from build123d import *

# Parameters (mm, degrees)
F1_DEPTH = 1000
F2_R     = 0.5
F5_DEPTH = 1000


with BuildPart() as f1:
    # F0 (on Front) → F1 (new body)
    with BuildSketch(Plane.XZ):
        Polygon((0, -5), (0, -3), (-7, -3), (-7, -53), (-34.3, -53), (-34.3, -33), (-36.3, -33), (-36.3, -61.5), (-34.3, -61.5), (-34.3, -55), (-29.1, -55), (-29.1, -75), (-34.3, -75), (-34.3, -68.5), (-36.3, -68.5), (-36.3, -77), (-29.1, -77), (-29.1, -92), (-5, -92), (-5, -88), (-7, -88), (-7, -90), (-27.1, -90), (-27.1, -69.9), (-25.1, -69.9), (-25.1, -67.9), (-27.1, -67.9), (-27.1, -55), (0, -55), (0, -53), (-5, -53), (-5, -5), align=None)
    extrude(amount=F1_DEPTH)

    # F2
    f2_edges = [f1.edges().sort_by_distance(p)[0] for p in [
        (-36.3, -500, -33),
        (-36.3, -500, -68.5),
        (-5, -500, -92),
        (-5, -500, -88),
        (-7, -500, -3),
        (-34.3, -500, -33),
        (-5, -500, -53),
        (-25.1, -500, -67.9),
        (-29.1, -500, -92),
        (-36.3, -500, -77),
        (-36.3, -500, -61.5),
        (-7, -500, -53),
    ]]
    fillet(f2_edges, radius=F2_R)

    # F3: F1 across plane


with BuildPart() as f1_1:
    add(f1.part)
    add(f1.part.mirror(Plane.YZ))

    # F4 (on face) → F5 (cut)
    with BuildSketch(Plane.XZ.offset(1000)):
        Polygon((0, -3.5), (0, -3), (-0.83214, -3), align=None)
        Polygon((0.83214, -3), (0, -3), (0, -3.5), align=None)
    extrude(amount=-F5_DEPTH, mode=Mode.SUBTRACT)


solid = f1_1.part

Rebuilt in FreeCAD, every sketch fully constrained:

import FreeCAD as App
import Part
import Sketcher

V = App.Vector
Q = App.Units.Quantity


def edges_at(feature, points):
    """Names of the edges that pass closest to the given points."""
    edges = feature.Shape.Edges
    near = lambda p: min(range(len(edges)), key=lambda i: edges[i].distToShape(Part.Vertex(*p))[0])
    return sorted({f"Edge{near(p) + 1}" for p in points})


def add_polygon(sketch, points):
    """Adds a closed chain of lines whose ends are joined by coincident constraints."""
    first, n = sketch.GeometryCount, len(points)
    for a, b in zip(points, points[1:] + points[:1]):
        sketch.addGeometry(Part.LineSegment(App.Vector(*a, 0), App.Vector(*b, 0)), False)
    for i in range(n):
        sketch.addConstraint(Sketcher.Constraint("Coincident", first + i, 2, first + (i + 1) % n, 1))

doc = App.newDocument("Part")
body = doc.addObject("PartDesign::Body", "Body")

# Sketch on XZ plane
sketch1 = doc.addObject("Sketcher::SketchObject", "Sketch")
body.addObject(sketch1)
sketch1.AttachmentSupport = (doc.XZ_Plane, [""])
sketch1.MapMode = "FlatFace"
add_polygon(sketch1, [(0, -5), (0, -3), (-7, -3), (-7, -53), (-34.3, -53), (-34.3, -33), (-36.3, -33), (-36.3, -61.5), (-34.3, -61.5), (-34.3, -55), (-29.1, -55), (-29.1, -75), (-34.3, -75), (-34.3, -68.5), (-36.3, -68.5), (-36.3, -77), (-29.1, -77), (-29.1, -92), (-5, -92), (-5, -88), (-7, -88), (-7, -90), (-27.1, -90), (-27.1, -69.9), (-25.1, -69.9), (-25.1, -67.9), (-27.1, -67.9), (-27.1, -55), (0, -55), (0, -53), (-5, -53), (-5, -5)])  # lines 0-31
sketch1.addConstraint(Sketcher.Constraint("Vertical", 0))
sketch1.addConstraint(Sketcher.Constraint("Horizontal", 1))
sketch1.addConstraint(Sketcher.Constraint("Vertical", 2))
sketch1.addConstraint(Sketcher.Constraint("Horizontal", 3))
sketch1.addConstraint(Sketcher.Constraint("Vertical", 4))
sketch1.addConstraint(Sketcher.Constraint("Horizontal", 5))
sketch1.addConstraint(Sketcher.Constraint("Vertical", 6))
sketch1.addConstraint(Sketcher.Constraint("Horizontal", 7))
sketch1.addConstraint(Sketcher.Constraint("Vertical", 8))
sketch1.addConstraint(Sketcher.Constraint("Horizontal", 9))
sketch1.addConstraint(Sketcher.Constraint("Vertical", 10))
sketch1.addConstraint(Sketcher.Constraint("Horizontal", 11))
sketch1.addConstraint(Sketcher.Constraint("Vertical", 12))
sketch1.addConstraint(Sketcher.Constraint("Horizontal", 13))
sketch1.addConstraint(Sketcher.Constraint("Vertical", 14))
sketch1.addConstraint(Sketcher.Constraint("Horizontal", 15))
sketch1.addConstraint(Sketcher.Constraint("Vertical", 16))
sketch1.addConstraint(Sketcher.Constraint("Horizontal", 17))
sketch1.addConstraint(Sketcher.Constraint("Vertical", 18))
sketch1.addConstraint(Sketcher.Constraint("Horizontal", 19))
sketch1.addConstraint(Sketcher.Constraint("Vertical", 20))
sketch1.addConstraint(Sketcher.Constraint("Horizontal", 21))
sketch1.addConstraint(Sketcher.Constraint("Vertical", 22))
sketch1.addConstraint(Sketcher.Constraint("Horizontal", 23))
sketch1.addConstraint(Sketcher.Constraint("Vertical", 24))
sketch1.addConstraint(Sketcher.Constraint("Horizontal", 25))
sketch1.addConstraint(Sketcher.Constraint("Vertical", 26))
sketch1.addConstraint(Sketcher.Constraint("Horizontal", 27))
sketch1.addConstraint(Sketcher.Constraint("Vertical", 28))
sketch1.addConstraint(Sketcher.Constraint("Horizontal", 29))
sketch1.addConstraint(Sketcher.Constraint("Vertical", 30))
sketch1.addConstraint(Sketcher.Constraint("Horizontal", 31))
sketch1.addConstraint(Sketcher.Constraint("PointOnObject", 0, 2, -2))
sketch1.addConstraint(Sketcher.Constraint("PointOnObject", 27, 2, -2))
sketch1.addConstraint(Sketcher.Constraint("Horizontal", 9, 2, 26, 2))
sketch1.addConstraint(Sketcher.Constraint("Horizontal", 3, 2, 28, 2))
sketch1.addConstraint(Sketcher.Constraint("Vertical", 4, 2, 7, 2))
sketch1.addConstraint(Sketcher.Constraint("Vertical", 8, 2, 11, 2))
sketch1.addConstraint(Sketcher.Constraint("Vertical", 6, 2, 13, 2))
sketch1.addConstraint(Sketcher.Constraint("Vertical", 10, 2, 15, 2))
sketch1.addConstraint(Sketcher.Constraint("Vertical", 2, 2, 19, 2))
sketch1.addConstraint(Sketcher.Constraint("Vertical", 22, 2, 25, 2))
sketch1.addConstraint(Sketcher.Constraint("Vertical", 18, 2, 29, 2))
sketch1.addConstraint(Sketcher.Constraint("Equal", 13, 19))
sketch1.addConstraint(Sketcher.Constraint("Equal", 19, 23))
sketch1.addConstraint(Sketcher.Constraint("Equal", 25, 0))
sketch1.addConstraint(Sketcher.Constraint("Equal", 4, 10))
sketch1.addConstraint(Sketcher.Constraint("Equal", 8, 12))
sketch1.addConstraint(Sketcher.Constraint("Equal", 0, 20))
sketch1.addConstraint(Sketcher.Constraint("Equal", 21, 22))
sketch1.addConstraint(Sketcher.Constraint("Equal", 20, 24))
sketch1.addConstraint(Sketcher.Constraint("Equal", 24, 28))
sketch1.addConstraint(Sketcher.Constraint("DistanceX", 1, 2, 1, 1, 7.0))
sketch1.addConstraint(Sketcher.Constraint("DistanceX", 5, 2, 5, 1, 2.0))
sketch1.addConstraint(Sketcher.Constraint("DistanceY", 2, 2, 2, 1, 50.0))
sketch1.addConstraint(Sketcher.Constraint("DistanceY", 4, 1, 4, 2, 20.0))
sketch1.addConstraint(Sketcher.Constraint("DistanceY", 16, 2, 16, 1, 15.0))
sketch1.addConstraint(Sketcher.Constraint("DistanceY", 18, 1, 18, 2, 4.0))
sketch1.addConstraint(Sketcher.Constraint("DistanceX", 3, 2, 3, 1, 27.3))
sketch1.addConstraint(Sketcher.Constraint("DistanceX", 9, 1, 9, 2, 5.2))
sketch1.addConstraint(Sketcher.Constraint("DistanceX", 21, 2, 21, 1, 20.1))
sketch1.addConstraint(Sketcher.Constraint("DistanceY", 6, 2, 6, 1, 28.5))
sketch1.addConstraint(Sketcher.Constraint("DistanceY", 14, 2, 14, 1, 8.5))
sketch1.addConstraint(Sketcher.Constraint("DistanceY", 0, 2, -1, 1, 3.0))
pad1 = doc.addObject("PartDesign::Pad", "Pad")
body.addObject(pad1)
pad1.Profile = sketch1
pad1.Length = 1000
doc.recompute()

fillet = doc.addObject("PartDesign::Fillet", "Fillet")
body.addObject(fillet)
fillet.Base = (pad1, edges_at(pad1, [
    (-36.3, -500, -33),
    (-36.3, -500, -68.5),
    (-5, -500, -92),
    (-5, -500, -88),
    (-7, -500, -3),
    (-34.3, -500, -33),
    (-5, -500, -53),
    (-25.1, -500, -67.9),
    (-29.1, -500, -92),
    (-36.3, -500, -77),
    (-36.3, -500, -61.5),
    (-7, -500, -53),
]))
fillet.Radius = 0.5
body2 = doc.addObject("PartDesign::Body", "Body001")
doc.recompute()

body2.BaseFeature = body
doc.recompute()

mirroring = doc.addObject("Part::Mirroring", "Mirroring")
mirroring.Source = body
mirroring.Base = V(0, 0, 0)
mirroring.Normal = V(1, 0, 0)
body3 = doc.addObject("PartDesign::Body", "Body002")
body3.BaseFeature = mirroring
boolean = doc.addObject("PartDesign::Boolean", "Boolean")
body2.addObject(boolean)
boolean.Type = "Fuse"
boolean.addObjects([body3])
doc.recompute()

# Sketch on XZ plane
sketch2 = doc.addObject("Sketcher::SketchObject", "Sketch001")
body2.addObject(sketch2)
sketch2.AttachmentSupport = (doc.getObject("XZ_Plane001"), [""])
sketch2.MapMode = "FlatFace"
sketch2.AttachmentOffset = App.Placement(V(0, 0, 1000), App.Rotation())
add_polygon(sketch2, [(-0.83214, -3), (0, -3.5), (0.83214, -3)])  # lines 0-2
sketch2.addConstraint(Sketcher.Constraint("Horizontal", 2))
sketch2.addConstraint(Sketcher.Constraint("PointOnObject", 0, 2, -2))
sketch2.addConstraint(Sketcher.Constraint("Equal", 0, 1))
sketch2.addConstraint(Sketcher.Constraint("Angle", 0, Q("-30.999992 deg")))
sketch2.addConstraint(Sketcher.Constraint("DistanceY", 1, 2, -1, 1, 3.0))
sketch2.addConstraint(Sketcher.Constraint("DistanceY", 0, 2, -1, 1, 3.5))
pocket1 = doc.addObject("PartDesign::Pocket", "Pocket")
body2.addObject(pocket1)
pocket1.Profile = sketch2
pocket1.Length = 1000
mirroring.Visibility = False

doc.recompute()
